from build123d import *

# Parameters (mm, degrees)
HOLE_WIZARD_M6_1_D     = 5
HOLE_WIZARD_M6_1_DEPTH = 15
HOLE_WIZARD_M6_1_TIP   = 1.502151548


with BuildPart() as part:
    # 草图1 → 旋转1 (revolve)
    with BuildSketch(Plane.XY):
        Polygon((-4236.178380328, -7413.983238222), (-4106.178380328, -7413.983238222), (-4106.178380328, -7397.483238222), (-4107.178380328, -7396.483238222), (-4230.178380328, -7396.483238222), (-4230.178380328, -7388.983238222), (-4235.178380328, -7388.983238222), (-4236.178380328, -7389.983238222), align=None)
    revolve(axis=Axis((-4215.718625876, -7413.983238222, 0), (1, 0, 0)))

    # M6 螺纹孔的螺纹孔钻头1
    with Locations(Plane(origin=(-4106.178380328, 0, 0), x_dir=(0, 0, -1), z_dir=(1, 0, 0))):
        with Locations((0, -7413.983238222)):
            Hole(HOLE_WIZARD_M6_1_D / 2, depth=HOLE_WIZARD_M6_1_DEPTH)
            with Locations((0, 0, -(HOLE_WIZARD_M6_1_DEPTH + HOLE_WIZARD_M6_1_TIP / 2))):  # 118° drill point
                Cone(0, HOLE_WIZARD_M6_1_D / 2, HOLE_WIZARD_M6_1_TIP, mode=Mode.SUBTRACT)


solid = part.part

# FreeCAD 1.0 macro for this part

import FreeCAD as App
import Part
import Sketcher
from FreeCAD import Vector
Q = App.Units.Quantity

doc = App.newDocument("Part")
body = doc.addObject("PartDesign::Body", "Body")

sketch1 = body.newObject("Sketcher::SketchObject", "Sketch")
sketch1.AttachmentSupport = (doc.getObject("XY_Plane"), [""])
sketch1.MapMode = "FlatFace"
sketch1.addGeometry([
    Part.LineSegment(Vector(-4236.17838, -7413.983238, 0), Vector(-4106.17838, -7413.983238, 0)),
    Part.LineSegment(Vector(-4106.17838, -7413.983238, 0), Vector(-4106.17838, -7397.483238, 0)),
    Part.LineSegment(Vector(-4106.17838, -7397.483238, 0), Vector(-4107.17838, -7396.483238, 0)),
    Part.LineSegment(Vector(-4107.17838, -7396.483238, 0), Vector(-4230.17838, -7396.483238, 0)),
    Part.LineSegment(Vector(-4230.17838, -7396.483238, 0), Vector(-4230.17838, -7388.983238, 0)),
    Part.LineSegment(Vector(-4230.17838, -7388.983238, 0), Vector(-4235.17838, -7388.983238, 0)),
    Part.LineSegment(Vector(-4235.17838, -7388.983238, 0), Vector(-4236.17838, -7389.983238, 0)),
    Part.LineSegment(Vector(-4236.17838, -7389.983238, 0), Vector(-4236.17838, -7413.983238, 0)),
], False)
sketch1.addGeometry(Part.LineSegment(Vector(-4236.17838, -7413.983238, 0), Vector(-4106.17838, -7413.983238, 0)), True)
sketch1.addConstraint([
    Sketcher.Constraint("Coincident", 0, 2, 1, 1),
    Sketcher.Constraint("Coincident", 1, 2, 2, 1),
    Sketcher.Constraint("Coincident", 2, 2, 3, 1),
    Sketcher.Constraint("Coincident", 3, 2, 4, 1),
    Sketcher.Constraint("Coincident", 4, 2, 5, 1),
    Sketcher.Constraint("Coincident", 5, 2, 6, 1),
    Sketcher.Constraint("Coincident", 6, 2, 7, 1),
    Sketcher.Constraint("Coincident", 7, 2, 0, 1),
    Sketcher.Constraint("Horizontal", 0),
    Sketcher.Constraint("Vertical", 1),
    Sketcher.Constraint("Horizontal", 3),
    Sketcher.Constraint("Vertical", 4),
    Sketcher.Constraint("Horizontal", 5),
    Sketcher.Constraint("Vertical", 7),
    Sketcher.Constraint("Horizontal", 8),
    Sketcher.Constraint("Coincident", 8, 1, 7, 2),
    Sketcher.Constraint("Perpendicular", 2, 6),
    Sketcher.Constraint("Vertical", 1, 2, 8, 2),
    Sketcher.Constraint("Equal", 2, 6),
    Sketcher.Constraint("DistanceX", 0, 1, 0, 2, 130.0),
    Sketcher.Constraint("DistanceX", 3, 2, 3, 1, 123.0),
    Sketcher.Constraint("DistanceX", 5, 2, 5, 1, 5.0),
    Sketcher.Constraint("DistanceY", 7, 2, 7, 1, 24.0),
    Sketcher.Constraint("Angle", 2, Q("135 deg")),
    Sketcher.Constraint("DistanceY", 1, 1, 1, 2, 16.5),
    Sketcher.Constraint("DistanceX", 0, 2, -1, 1, 4106.17838),
    Sketcher.Constraint("DistanceY", 0, 2, -1, 1, 7413.983238),
])
revolution = body.newObject("PartDesign::Revolution", "Revolution")
revolution.Profile = sketch1
revolution.ReferenceAxis = (sketch1, ["Axis0"])
revolution.Angle = 360

sketch2 = body.newObject("Sketcher::SketchObject", "Sketch001")
sketch2.AttachmentSupport = (doc.getObject("YZ_Plane"), [""])
sketch2.MapMode = "FlatFace"
sketch2.AttachmentOffset = App.Placement(Vector(0, 0, -4106.17838), App.Rotation())
sketch2.addGeometry(Part.Circle(Vector(-7413.983238, 0, 0), Vector(0, 0, 1), 2.5), False)
sketch2.addConstraint([
    Sketcher.Constraint("PointOnObject", 0, 3, -1),
    Sketcher.Constraint("Diameter", 0, 5.0),
    Sketcher.Constraint("DistanceX", 0, 3, -1, 1, 7413.983238),
])
doc.recompute()
hole = body.newObject("PartDesign::Hole", "Hole")
hole.Profile = sketch2
hole.ThreadType = "None"
hole.Diameter = 5
hole.DepthType = "Dimension"
hole.Depth = 15
hole.DrillPoint = "Angled"
hole.DrillPointAngle = 118

doc.recompute()
